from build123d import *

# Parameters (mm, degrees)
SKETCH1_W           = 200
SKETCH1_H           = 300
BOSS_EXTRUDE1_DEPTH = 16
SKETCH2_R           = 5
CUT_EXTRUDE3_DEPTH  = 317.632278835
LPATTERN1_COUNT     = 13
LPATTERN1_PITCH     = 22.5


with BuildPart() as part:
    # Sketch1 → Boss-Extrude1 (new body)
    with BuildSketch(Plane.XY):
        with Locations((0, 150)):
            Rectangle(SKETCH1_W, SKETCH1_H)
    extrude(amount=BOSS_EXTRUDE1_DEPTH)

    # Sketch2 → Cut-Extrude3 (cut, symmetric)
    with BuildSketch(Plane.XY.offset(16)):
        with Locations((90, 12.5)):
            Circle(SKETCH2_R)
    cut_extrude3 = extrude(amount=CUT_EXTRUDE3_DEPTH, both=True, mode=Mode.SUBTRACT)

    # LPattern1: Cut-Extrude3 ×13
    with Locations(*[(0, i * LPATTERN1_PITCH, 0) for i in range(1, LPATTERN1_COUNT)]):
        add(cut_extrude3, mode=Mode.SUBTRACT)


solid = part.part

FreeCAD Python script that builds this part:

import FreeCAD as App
import Part
import Sketcher
Q = App.Units.Quantity

doc = App.newDocument("Part")
params = doc.addObject("Spreadsheet::Sheet", "Params")
for row, (alias, value) in enumerate([
    ("sketch1_width", "200 mm"),
    ("sketch1_height", "300 mm"),
    ("pad1_length", "16 mm"),
    ("sketch2_diameter", "10 mm"),
    ("pocket1_length", "635.264558 mm"),
    ("linearpattern_pitch", "22.5 mm"),
], start=1):
    params.set(f"A{row}", alias)
    params.set(f"B{row}", "=" + value)
    params.setAlias(f"B{row}", alias)

body = doc.addObject("PartDesign::Body", "Body")

# Sketch on XY plane
sketch1 = body.newObject("Sketcher::SketchObject", "Sketch")
sketch1.AttachmentSupport = (doc.getObject("XY_Plane"), [""])
sketch1.MapMode = "FlatFace"
sketch1.addGeometry([
    Part.LineSegment(App.Vector(-100, 300, 0), App.Vector(-100, 0, 0)),
    Part.LineSegment(App.Vector(-100, 0, 0), App.Vector(100, 0, 0)),
    Part.LineSegment(App.Vector(100, 0, 0), App.Vector(100, 300, 0)),
    Part.LineSegment(App.Vector(100, 300, 0), App.Vector(-100, 300, 0)),
], False)
sketch1.addConstraint([
    Sketcher.Constraint("Coincident", 0, 2, 1, 1),
    Sketcher.Constraint("Coincident", 1, 2, 2, 1),
    Sketcher.Constraint("Coincident", 2, 2, 3, 1),
    Sketcher.Constraint("Coincident", 3, 2, 0, 1),
    Sketcher.Constraint("Vertical", 0),
    Sketcher.Constraint("Horizontal", 1),
    Sketcher.Constraint("Vertical", 2),
    Sketcher.Constraint("Horizontal", 3),
    Sketcher.Constraint("Symmetric", 0, 2, 1, 2, -1, 1),
    Sketcher.Constraint("DistanceX", 1, 1, 1, 2, Q("200 mm")),
    Sketcher.Constraint("DistanceY", 0, 2, 0, 1, Q("300 mm")),
])
sketch1.setExpression("Constraints[9]", "Params.sketch1_width")
sketch1.setExpression("Constraints[10]", "Params.sketch1_height")
pad1 = body.newObject("PartDesign::Pad", "Pad")
pad1.Profile = sketch1
pad1.setExpression("Length", "Params.pad1_length")

# Sketch on XY plane
sketch2 = body.newObject("Sketcher::SketchObject", "Sketch001")
sketch2.AttachmentSupport = (doc.getObject("XY_Plane"), [""])
sketch2.MapMode = "FlatFace"
sketch2.AttachmentOffset = App.Placement(App.Vector(0, 0, 16), App.Rotation())
sketch2.addGeometry(Part.Circle(App.Vector(90, 12, 0), App.Vector(0, 0, 1), 5), False)
sketch2.addConstraint([
    Sketcher.Constraint("Diameter", 0, Q("10 mm")),
    Sketcher.Constraint("DistanceX", -1, 1, 0, 3, Q("90 mm")),
    Sketcher.Constraint("DistanceY", -1, 1, 0, 3, Q("12.5 mm")),
])
sketch2.setExpression("Constraints[0]", "Params.sketch2_diameter")
pocket1 = body.newObject("PartDesign::Pocket", "Pocket")
pocket1.Profile = sketch2
pocket1.setExpression("Length", "Params.pocket1_length")
pocket1.Midplane = True
doc.recompute()

linearpattern = body.newObject("PartDesign::LinearPattern", "LinearPattern")
linearpattern.Originals = [pocket1]
linearpattern.Direction = (doc.getObject("Y_Axis"), [""])
linearpattern.Mode = "offset"
linearpattern.setExpression("Offset", "Params.linearpattern_pitch")
linearpattern.Occurrences = 13
body.Tip = linearpattern

doc.recompute()
